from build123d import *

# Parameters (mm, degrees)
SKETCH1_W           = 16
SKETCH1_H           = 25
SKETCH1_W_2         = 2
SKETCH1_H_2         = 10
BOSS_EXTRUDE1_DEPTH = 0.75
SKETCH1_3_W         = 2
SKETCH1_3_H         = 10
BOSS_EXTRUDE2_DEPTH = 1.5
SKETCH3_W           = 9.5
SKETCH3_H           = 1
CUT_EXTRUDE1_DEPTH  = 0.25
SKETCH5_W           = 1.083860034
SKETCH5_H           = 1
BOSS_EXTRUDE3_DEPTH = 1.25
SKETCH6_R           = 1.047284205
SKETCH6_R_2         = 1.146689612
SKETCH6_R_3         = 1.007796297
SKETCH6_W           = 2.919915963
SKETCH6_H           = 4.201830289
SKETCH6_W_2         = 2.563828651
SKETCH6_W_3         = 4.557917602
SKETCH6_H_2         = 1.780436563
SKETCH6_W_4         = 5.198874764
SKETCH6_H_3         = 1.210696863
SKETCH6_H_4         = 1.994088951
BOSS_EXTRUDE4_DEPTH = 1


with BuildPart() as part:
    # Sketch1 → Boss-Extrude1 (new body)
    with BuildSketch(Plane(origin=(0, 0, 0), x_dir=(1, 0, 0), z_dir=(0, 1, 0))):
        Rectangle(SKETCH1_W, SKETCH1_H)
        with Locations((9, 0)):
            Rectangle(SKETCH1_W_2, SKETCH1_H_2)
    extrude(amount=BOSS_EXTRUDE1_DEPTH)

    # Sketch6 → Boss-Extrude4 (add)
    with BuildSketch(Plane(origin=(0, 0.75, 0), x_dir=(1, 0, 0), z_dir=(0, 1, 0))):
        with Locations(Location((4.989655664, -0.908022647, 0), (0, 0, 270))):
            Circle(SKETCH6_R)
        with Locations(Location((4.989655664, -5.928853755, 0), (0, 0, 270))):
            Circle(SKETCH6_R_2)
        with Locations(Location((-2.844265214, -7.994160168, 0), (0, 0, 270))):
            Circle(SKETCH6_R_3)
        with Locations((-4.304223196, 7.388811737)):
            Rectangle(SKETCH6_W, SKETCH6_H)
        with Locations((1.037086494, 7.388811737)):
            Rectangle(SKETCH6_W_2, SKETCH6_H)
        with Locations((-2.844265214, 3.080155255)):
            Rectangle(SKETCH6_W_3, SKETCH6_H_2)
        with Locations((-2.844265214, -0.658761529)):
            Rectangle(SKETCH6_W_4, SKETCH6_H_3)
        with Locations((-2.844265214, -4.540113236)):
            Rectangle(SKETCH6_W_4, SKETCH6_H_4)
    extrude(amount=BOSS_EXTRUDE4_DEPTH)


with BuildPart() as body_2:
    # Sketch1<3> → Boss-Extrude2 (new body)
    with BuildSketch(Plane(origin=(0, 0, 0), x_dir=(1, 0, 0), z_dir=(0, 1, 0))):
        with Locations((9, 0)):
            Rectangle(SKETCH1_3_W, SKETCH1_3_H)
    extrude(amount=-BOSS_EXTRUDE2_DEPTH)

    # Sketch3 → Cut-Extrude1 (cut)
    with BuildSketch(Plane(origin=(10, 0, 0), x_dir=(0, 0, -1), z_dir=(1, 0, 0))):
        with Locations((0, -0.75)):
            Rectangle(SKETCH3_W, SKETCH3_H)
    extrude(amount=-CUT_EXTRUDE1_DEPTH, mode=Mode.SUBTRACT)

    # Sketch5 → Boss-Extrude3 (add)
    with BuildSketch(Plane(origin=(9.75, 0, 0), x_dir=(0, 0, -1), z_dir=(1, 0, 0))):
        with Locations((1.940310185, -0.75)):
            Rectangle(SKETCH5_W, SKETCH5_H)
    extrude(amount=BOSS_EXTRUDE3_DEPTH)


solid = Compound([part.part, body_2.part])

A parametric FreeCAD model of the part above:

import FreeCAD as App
import Part
import Sketcher
from FreeCAD import Vector


def add_polygon(sketch, points):
    """Adds a closed chain of lines whose ends are joined by coincident constraints."""
    first, n = sketch.GeometryCount, len(points)
    for a, b in zip(points, points[1:] + points[:1]):
        sketch.addGeometry(Part.LineSegment(App.Vector(*a, 0), App.Vector(*b, 0)), False)
    for i in range(n):
        sketch.addConstraint(Sketcher.Constraint("Coincident", first + i, 2, first + (i + 1) % n, 1))

doc = App.newDocument("Part")
body = doc.addObject("PartDesign::Body", "Body")

sketch1 = body.newObject("Sketcher::SketchObject", "Sketch")
sketch1.AttachmentSupport = (doc.getObject("XZ_Plane"), [""])
sketch1.MapMode = "FlatFace"
add_polygon(sketch1, [(-8, -12.5), (-8, 12.5), (8, 12.5), (8, 5), (10, 5), (10, -5), (8, -5), (8, -12.5)])
sketch1.addConstraint([
    Sketcher.Constraint("Vertical", 0),
    Sketcher.Constraint("Horizontal", 1),
    Sketcher.Constraint("Vertical", 2),
    Sketcher.Constraint("Horizontal", 3),
    Sketcher.Constraint("Vertical", 4),
    Sketcher.Constraint("Horizontal", 5),
    Sketcher.Constraint("Vertical", 6),
    Sketcher.Constraint("Horizontal", 7),
    Sketcher.Constraint("Symmetric", 0, 2, 6, 2, -1, 1),
    Sketcher.Constraint("Symmetric", 2, 2, 5, 2, -1),
    Sketcher.Constraint("DistanceX", 1, 1, 1, 2, 16.0),
    Sketcher.Constraint("DistanceX", 3, 1, 3, 2, 2.0),
    Sketcher.Constraint("DistanceY", 0, 1, 0, 2, 25.0),
    Sketcher.Constraint("DistanceY", 4, 2, 4, 1, 10.0),
])
pad1 = body.newObject("PartDesign::Pad", "Pad")
pad1.Profile = sketch1
pad1.Length = 0.75
pad1.Reversed = True

sketch2 = body.newObject("Sketcher::SketchObject", "Sketch001")
sketch2.AttachmentSupport = (doc.getObject("XZ_Plane"), [""])
sketch2.MapMode = "FlatFace"
sketch2.AttachmentOffset = App.Placement(Vector(0, 0, -0.75), App.Rotation())
sketch2.addGeometry(Part.Circle(Vector(4.989656, 0.908023, 0), Vector(0, 0, 1), 1.047284), False)
sketch2.addGeometry(Part.Circle(Vector(4.989656, 5.928854, 0), Vector(0, 0, 1), 1.14669), False)
sketch2.addGeometry(Part.Circle(Vector(-2.844265, 7.99416, 0), Vector(0, 0, 1), 1.007796), False)
add_polygon(sketch2, [(-5.764181, -9.489727), (-5.764181, -5.287897), (-2.844265, -5.287897), (-2.844265, -9.489727)])
add_polygon(sketch2, [(-0.244828, -9.489727), (-0.244828, -5.287897), (2.319001, -5.287897), (2.319001, -9.489727)])
add_polygon(sketch2, [(-5.123224, -3.970374), (-5.123224, -2.189937), (-0.565306, -2.189937), (-0.565306, -3.970374)])
add_polygon(sketch2, [(-5.443703, 0.053413), (-5.443703, 1.26411), (-0.244828, 1.26411), (-0.244828, 0.053413)])
add_polygon(sketch2, [(-5.443703, 3.543069), (-5.443703, 5.537158), (-0.244828, 5.537158), (-0.244828, 3.543069)])
sketch2.addConstraint([
    Sketcher.Constraint("Vertical", 3),
    Sketcher.Constraint("Horizontal", 4),
    Sketcher.Constraint("Vertical", 5),
    Sketcher.Constraint("Horizontal", 6),
    Sketcher.Constraint("Vertical", 7),
    Sketcher.Constraint("Horizontal", 8),
    Sketcher.Constraint("Vertical", 9),
    Sketcher.Constraint("Horizontal", 10),
    Sketcher.Constraint("Vertical", 11),
    Sketcher.Constraint("Horizontal", 12),
    Sketcher.Constraint("Vertical", 13),
    Sketcher.Constraint("Horizontal", 14),
    Sketcher.Constraint("Vertical", 15),
    Sketcher.Constraint("Horizontal", 16),
    Sketcher.Constraint("Vertical", 17),
    Sketcher.Constraint("Horizontal", 18),
    Sketcher.Constraint("Vertical", 19),
    Sketcher.Constraint("Horizontal", 20),
    Sketcher.Constraint("Vertical", 21),
    Sketcher.Constraint("Horizontal", 22),
    Sketcher.Constraint("Horizontal", 4, 2, 7, 2),
    Sketcher.Constraint("Horizontal", 6, 2, 9, 2),
    Sketcher.Constraint("Vertical", 0, 3, 1, 3),
    Sketcher.Constraint("Vertical", 2, 3, 4, 2),
    Sketcher.Constraint("Vertical", 10, 2, 16, 2),
    Sketcher.Constraint("Vertical", 18, 2, 19, 2),
    Sketcher.Constraint("Vertical", 17, 2, 20, 2),
    Sketcher.Constraint("Diameter", 0, 2.094568),
    Sketcher.Constraint("Diameter", 1, 2.293379),
    Sketcher.Constraint("Diameter", 2, 2.015593),
    Sketcher.Constraint("DistanceX", -1, 1, 8, 2, 2.319001),
    Sketcher.Constraint("DistanceX", 8, 1, 8, 2, 2.563829),
    Sketcher.Constraint("DistanceY", 3, 1, 3, 2, 4.20183),
    Sketcher.Constraint("DistanceY", 19, 1, 19, 2, 1.994089),
    Sketcher.Constraint("DistanceX", 4, 1, 4, 2, 2.919916),
    Sketcher.Constraint("DistanceX", 12, 1, 12, 2, 4.557918),
    Sketcher.Constraint("DistanceX", 16, 1, 16, 2, 5.198875),
    Sketcher.Constraint("DistanceY", 11, 1, 11, 2, 1.780437),
    Sketcher.Constraint("DistanceY", 15, 1, 15, 2, 1.210697),
    Sketcher.Constraint("DistanceY", -1, 1, 2, 3, 7.99416),
    Sketcher.Constraint("DistanceX", 3, 2, -1, 1, 5.764181),
    Sketcher.Constraint("DistanceY", -1, 1, 15, 2, 1.26411),
    Sketcher.Constraint("DistanceY", -1, 1, 21, 2, 3.543069),
    Sketcher.Constraint("DistanceY", 0, 3, 1, 3, 5.020831),
    Sketcher.Constraint("DistanceX", 2, 3, 1, 3, 7.833921),
    Sketcher.Constraint("DistanceY", 3, 2, 0, 3, 6.195919),
    Sketcher.Constraint("DistanceY", 3, 2, 11, 2, 3.09796),
    Sketcher.Constraint("DistanceX", 11, 2, 4, 2, 2.278959),
    Sketcher.Constraint("DistanceY", 12, 2, 17, 2, 2.24335),
])
pad2 = body.newObject("PartDesign::Pad", "Pad001")
pad2.Profile = sketch2
pad2.Length = 1
pad2.Reversed = True
body2 = doc.addObject("PartDesign::Body", "Body001")

sketch3 = body2.newObject("Sketcher::SketchObject", "Sketch002")
sketch3.AttachmentSupport = (doc.getObject("XZ_Plane001"), [""])
sketch3.MapMode = "FlatFace"
add_polygon(sketch3, [(8, -5), (8, 5), (10, 5), (10, -5)])
sketch3.addConstraint([
    Sketcher.Constraint("Vertical", 0),
    Sketcher.Constraint("Horizontal", 1),
    Sketcher.Constraint("Vertical", 2),
    Sketcher.Constraint("Horizontal", 3),
    Sketcher.Constraint("DistanceX", 1, 1, 1, 2, 2.0),
    Sketcher.Constraint("DistanceY", 0, 1, 0, 2, 10.0),
    Sketcher.Constraint("DistanceX", -1, 1, 0, 2, 8.0),
    Sketcher.Constraint("DistanceY", -1, 1, 0, 2, 5.0),
])
pad3 = body2.newObject("PartDesign::Pad", "Pad002")
pad3.Profile = sketch3
pad3.Length = 1.5

sketch4 = body2.newObject("Sketcher::SketchObject", "Sketch003")
sketch4.AttachmentSupport = (doc.getObject("YZ_Plane001"), [""])
sketch4.MapMode = "FlatFace"
sketch4.AttachmentOffset = App.Placement(Vector(0, 0, 10), App.Rotation())
add_polygon(sketch4, [(-0.25, 4.75), (-1.25, 4.75), (-1.25, -4.75), (-0.25, -4.75)])
sketch4.addConstraint([
    Sketcher.Constraint("Horizontal", 0),
    Sketcher.Constraint("Vertical", 1),
    Sketcher.Constraint("Horizontal", 2),
    Sketcher.Constraint("Vertical", 3),
    Sketcher.Constraint("DistanceX", 0, 2, 0, 1, 1.0),
    Sketcher.Constraint("DistanceY", 1, 2, 1, 1, 9.5),
    Sketcher.Constraint("DistanceX", 0, 2, -1, 1, 1.25),
    Sketcher.Constraint("DistanceY", -1, 1, 0, 2, 4.75),
])
pocket1 = body2.newObject("PartDesign::Pocket", "Pocket")
pocket1.Profile = sketch4
pocket1.Length = 0.25

sketch5 = body2.newObject("Sketcher::SketchObject", "Sketch004")
sketch5.AttachmentSupport = (doc.getObject("YZ_Plane001"), [""])
sketch5.MapMode = "FlatFace"
sketch5.AttachmentOffset = App.Placement(Vector(0, 0, 9.75), App.Rotation())
add_polygon(sketch5, [(-0.25, -1.39838), (-1.25, -1.39838), (-1.25, -2.48224), (-0.25, -2.48224)])
sketch5.addConstraint([
    Sketcher.Constraint("Horizontal", 0),
    Sketcher.Constraint("Vertical", 1),
    Sketcher.Constraint("Horizontal", 2),
    Sketcher.Constraint("Vertical", 3),
    Sketcher.Constraint("DistanceX", 0, 2, 0, 1, 1.0),
    Sketcher.Constraint("DistanceX", 0, 2, -1, 1, 1.25),
    Sketcher.Constraint("DistanceY", 1, 2, 1, 1, 1.08386),
    Sketcher.Constraint("DistanceY", 0, 2, -1, 1, 1.39838),
])
pad4 = body2.newObject("PartDesign::Pad", "Pad003")
pad4.Profile = sketch5
pad4.Length = 1.25

doc.recompute()
